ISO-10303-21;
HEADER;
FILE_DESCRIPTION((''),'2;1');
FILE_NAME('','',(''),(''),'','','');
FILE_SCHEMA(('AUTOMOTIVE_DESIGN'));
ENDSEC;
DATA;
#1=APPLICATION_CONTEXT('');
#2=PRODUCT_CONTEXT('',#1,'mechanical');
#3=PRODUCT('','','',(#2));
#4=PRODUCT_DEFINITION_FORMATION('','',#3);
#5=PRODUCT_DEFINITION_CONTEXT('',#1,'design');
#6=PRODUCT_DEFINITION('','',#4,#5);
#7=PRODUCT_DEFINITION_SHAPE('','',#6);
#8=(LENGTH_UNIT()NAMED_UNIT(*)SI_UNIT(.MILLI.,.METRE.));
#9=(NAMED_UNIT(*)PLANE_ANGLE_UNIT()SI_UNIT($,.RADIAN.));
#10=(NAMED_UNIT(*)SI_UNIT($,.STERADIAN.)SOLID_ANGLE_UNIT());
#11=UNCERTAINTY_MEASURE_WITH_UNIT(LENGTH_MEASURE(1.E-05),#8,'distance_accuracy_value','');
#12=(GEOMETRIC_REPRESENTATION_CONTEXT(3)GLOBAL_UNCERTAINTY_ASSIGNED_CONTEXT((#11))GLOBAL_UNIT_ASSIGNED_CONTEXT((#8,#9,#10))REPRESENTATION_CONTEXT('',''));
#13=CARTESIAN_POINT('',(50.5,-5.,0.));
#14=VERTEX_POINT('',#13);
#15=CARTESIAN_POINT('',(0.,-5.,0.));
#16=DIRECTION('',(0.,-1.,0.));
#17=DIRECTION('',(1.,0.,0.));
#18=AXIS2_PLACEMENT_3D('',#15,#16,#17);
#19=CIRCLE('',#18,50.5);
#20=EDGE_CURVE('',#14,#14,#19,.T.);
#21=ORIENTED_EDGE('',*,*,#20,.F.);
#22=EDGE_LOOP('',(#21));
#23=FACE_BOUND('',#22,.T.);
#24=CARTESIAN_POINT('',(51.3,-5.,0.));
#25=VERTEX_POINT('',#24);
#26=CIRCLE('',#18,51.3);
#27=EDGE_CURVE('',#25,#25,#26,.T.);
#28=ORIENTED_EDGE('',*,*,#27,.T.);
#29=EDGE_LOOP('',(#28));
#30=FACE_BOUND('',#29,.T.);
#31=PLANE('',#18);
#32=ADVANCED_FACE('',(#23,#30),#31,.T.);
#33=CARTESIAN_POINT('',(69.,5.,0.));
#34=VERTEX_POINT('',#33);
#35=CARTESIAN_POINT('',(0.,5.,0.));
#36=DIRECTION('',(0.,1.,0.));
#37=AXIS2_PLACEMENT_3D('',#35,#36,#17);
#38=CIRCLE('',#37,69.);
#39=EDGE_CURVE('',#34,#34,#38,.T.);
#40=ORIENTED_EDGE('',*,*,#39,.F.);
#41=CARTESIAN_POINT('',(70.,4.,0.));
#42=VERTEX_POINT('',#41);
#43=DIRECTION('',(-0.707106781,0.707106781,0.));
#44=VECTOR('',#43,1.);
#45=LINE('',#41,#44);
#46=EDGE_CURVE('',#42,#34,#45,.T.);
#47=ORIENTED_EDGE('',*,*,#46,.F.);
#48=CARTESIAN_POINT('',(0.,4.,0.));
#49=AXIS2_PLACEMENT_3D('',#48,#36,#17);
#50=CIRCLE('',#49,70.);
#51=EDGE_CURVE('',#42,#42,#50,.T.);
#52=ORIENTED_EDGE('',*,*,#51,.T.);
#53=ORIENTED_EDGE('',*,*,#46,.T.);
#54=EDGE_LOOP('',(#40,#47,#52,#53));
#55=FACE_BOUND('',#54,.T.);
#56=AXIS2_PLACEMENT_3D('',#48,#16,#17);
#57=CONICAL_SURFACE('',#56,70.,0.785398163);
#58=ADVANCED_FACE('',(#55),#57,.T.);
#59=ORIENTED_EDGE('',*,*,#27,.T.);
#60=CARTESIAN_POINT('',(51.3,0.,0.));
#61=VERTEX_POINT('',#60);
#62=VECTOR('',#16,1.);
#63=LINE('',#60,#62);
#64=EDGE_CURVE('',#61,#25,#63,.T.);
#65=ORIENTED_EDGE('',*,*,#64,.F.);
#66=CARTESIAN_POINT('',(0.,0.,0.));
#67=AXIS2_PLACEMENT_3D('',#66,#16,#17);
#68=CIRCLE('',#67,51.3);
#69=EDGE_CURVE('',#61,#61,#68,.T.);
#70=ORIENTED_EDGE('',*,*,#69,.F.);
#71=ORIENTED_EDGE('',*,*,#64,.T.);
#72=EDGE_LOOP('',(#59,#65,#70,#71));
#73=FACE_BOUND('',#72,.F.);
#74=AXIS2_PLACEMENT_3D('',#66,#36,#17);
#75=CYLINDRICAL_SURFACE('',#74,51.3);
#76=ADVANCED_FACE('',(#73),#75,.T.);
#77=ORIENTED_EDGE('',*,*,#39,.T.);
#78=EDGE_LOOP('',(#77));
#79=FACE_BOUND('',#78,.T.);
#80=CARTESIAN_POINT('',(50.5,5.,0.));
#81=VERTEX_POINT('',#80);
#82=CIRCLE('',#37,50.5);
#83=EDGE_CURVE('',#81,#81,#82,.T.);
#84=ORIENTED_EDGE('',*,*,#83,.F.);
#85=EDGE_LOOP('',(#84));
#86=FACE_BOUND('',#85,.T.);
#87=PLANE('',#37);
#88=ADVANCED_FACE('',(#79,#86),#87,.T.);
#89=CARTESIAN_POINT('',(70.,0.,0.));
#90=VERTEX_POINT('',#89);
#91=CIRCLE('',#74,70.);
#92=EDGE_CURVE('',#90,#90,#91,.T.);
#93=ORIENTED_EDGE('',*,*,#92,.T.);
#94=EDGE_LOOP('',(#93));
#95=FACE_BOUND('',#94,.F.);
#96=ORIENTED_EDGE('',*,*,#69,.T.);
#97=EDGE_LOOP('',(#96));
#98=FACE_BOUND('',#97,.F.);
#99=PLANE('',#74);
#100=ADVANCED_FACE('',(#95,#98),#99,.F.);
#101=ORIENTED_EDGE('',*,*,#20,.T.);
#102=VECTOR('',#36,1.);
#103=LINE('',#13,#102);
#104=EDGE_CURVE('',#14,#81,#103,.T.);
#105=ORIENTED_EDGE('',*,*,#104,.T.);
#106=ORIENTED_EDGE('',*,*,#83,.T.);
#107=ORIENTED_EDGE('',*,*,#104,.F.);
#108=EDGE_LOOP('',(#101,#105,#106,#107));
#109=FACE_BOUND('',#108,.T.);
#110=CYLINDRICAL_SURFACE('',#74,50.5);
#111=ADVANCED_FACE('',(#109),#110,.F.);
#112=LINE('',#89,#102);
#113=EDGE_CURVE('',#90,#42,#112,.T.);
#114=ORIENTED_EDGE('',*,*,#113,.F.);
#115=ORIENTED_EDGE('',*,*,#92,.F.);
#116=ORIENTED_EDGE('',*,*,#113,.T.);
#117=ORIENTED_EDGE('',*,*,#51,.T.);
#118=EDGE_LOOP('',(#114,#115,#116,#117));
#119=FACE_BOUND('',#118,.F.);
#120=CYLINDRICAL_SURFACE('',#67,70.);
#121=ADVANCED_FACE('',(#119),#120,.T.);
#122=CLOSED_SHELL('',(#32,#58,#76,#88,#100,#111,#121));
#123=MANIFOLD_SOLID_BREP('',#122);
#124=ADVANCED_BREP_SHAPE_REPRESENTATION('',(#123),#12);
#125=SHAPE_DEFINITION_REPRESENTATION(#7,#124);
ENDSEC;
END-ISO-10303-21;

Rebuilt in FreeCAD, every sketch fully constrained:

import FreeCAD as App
import Part
import Sketcher

V = App.Vector
Q = App.Units.Quantity


def edges_at(feature, points):
    """Names of the edges that pass closest to the given points."""
    edges = feature.Shape.Edges
    near = lambda p: min(range(len(edges)), key=lambda i: edges[i].distToShape(Part.Vertex(*p))[0])
    return sorted({f"Edge{near(p) + 1}" for p in points})

doc = App.newDocument("Part")
body = doc.addObject("PartDesign::Body", "Body")

sketch1 = body.newObject("Sketcher::SketchObject", "Sketch")
sketch1.AttachmentSupport = (doc.getObject("XZ_Plane"), [""])
sketch1.MapMode = "FlatFace"
sketch1.addGeometry([
    Part.Circle(V(0, 0, 0), V(0, 0, 1), 70),
    Part.Circle(V(0, 0, 0), V(0, 0, 1), 50),
], False)
sketch1.addConstraint([
    Sketcher.Constraint("Coincident", 0, 3, -1, 1),
    Sketcher.Constraint("Coincident", 1, 3, -1, 1),
    Sketcher.Constraint("Diameter", 0, Q("140 mm")),
    Sketcher.Constraint("Diameter", 1, Q("101 mm")),
])
pad1 = body.newObject("PartDesign::Pad", "Pad")
pad1.Profile = sketch1
pad1.Length = 5
pad1.Reversed = True
doc.recompute()

chamfer = body.newObject("PartDesign::Chamfer", "Chamfer")
chamfer.Base = (pad1, edges_at(pad1, [(-65.263, 5, 25.313)]))
chamfer.Size = 1

sketch2 = body.newObject("Sketcher::SketchObject", "Sketch001")
sketch2.AttachmentSupport = (doc.getObject("XZ_Plane"), [""])
sketch2.MapMode = "FlatFace"
sketch2.addGeometry([
    Part.Circle(V(0, 0, 0), V(0, 0, 1), 51),
    Part.Circle(V(0, 0, 0), V(0, 0, 1), 50),
], False)
sketch2.addConstraint([
    Sketcher.Constraint("Coincident", 0, 3, -1, 1),
    Sketcher.Constraint("Coincident", 1, 3, -1, 1),
    Sketcher.Constraint("Diameter", 0, Q("102.6 mm")),
    Sketcher.Constraint("Diameter", 1, Q("101 mm")),
])
pad2 = body.newObject("PartDesign::Pad", "Pad001")
pad2.Profile = sketch2
pad2.Length = 5

doc.recompute()
